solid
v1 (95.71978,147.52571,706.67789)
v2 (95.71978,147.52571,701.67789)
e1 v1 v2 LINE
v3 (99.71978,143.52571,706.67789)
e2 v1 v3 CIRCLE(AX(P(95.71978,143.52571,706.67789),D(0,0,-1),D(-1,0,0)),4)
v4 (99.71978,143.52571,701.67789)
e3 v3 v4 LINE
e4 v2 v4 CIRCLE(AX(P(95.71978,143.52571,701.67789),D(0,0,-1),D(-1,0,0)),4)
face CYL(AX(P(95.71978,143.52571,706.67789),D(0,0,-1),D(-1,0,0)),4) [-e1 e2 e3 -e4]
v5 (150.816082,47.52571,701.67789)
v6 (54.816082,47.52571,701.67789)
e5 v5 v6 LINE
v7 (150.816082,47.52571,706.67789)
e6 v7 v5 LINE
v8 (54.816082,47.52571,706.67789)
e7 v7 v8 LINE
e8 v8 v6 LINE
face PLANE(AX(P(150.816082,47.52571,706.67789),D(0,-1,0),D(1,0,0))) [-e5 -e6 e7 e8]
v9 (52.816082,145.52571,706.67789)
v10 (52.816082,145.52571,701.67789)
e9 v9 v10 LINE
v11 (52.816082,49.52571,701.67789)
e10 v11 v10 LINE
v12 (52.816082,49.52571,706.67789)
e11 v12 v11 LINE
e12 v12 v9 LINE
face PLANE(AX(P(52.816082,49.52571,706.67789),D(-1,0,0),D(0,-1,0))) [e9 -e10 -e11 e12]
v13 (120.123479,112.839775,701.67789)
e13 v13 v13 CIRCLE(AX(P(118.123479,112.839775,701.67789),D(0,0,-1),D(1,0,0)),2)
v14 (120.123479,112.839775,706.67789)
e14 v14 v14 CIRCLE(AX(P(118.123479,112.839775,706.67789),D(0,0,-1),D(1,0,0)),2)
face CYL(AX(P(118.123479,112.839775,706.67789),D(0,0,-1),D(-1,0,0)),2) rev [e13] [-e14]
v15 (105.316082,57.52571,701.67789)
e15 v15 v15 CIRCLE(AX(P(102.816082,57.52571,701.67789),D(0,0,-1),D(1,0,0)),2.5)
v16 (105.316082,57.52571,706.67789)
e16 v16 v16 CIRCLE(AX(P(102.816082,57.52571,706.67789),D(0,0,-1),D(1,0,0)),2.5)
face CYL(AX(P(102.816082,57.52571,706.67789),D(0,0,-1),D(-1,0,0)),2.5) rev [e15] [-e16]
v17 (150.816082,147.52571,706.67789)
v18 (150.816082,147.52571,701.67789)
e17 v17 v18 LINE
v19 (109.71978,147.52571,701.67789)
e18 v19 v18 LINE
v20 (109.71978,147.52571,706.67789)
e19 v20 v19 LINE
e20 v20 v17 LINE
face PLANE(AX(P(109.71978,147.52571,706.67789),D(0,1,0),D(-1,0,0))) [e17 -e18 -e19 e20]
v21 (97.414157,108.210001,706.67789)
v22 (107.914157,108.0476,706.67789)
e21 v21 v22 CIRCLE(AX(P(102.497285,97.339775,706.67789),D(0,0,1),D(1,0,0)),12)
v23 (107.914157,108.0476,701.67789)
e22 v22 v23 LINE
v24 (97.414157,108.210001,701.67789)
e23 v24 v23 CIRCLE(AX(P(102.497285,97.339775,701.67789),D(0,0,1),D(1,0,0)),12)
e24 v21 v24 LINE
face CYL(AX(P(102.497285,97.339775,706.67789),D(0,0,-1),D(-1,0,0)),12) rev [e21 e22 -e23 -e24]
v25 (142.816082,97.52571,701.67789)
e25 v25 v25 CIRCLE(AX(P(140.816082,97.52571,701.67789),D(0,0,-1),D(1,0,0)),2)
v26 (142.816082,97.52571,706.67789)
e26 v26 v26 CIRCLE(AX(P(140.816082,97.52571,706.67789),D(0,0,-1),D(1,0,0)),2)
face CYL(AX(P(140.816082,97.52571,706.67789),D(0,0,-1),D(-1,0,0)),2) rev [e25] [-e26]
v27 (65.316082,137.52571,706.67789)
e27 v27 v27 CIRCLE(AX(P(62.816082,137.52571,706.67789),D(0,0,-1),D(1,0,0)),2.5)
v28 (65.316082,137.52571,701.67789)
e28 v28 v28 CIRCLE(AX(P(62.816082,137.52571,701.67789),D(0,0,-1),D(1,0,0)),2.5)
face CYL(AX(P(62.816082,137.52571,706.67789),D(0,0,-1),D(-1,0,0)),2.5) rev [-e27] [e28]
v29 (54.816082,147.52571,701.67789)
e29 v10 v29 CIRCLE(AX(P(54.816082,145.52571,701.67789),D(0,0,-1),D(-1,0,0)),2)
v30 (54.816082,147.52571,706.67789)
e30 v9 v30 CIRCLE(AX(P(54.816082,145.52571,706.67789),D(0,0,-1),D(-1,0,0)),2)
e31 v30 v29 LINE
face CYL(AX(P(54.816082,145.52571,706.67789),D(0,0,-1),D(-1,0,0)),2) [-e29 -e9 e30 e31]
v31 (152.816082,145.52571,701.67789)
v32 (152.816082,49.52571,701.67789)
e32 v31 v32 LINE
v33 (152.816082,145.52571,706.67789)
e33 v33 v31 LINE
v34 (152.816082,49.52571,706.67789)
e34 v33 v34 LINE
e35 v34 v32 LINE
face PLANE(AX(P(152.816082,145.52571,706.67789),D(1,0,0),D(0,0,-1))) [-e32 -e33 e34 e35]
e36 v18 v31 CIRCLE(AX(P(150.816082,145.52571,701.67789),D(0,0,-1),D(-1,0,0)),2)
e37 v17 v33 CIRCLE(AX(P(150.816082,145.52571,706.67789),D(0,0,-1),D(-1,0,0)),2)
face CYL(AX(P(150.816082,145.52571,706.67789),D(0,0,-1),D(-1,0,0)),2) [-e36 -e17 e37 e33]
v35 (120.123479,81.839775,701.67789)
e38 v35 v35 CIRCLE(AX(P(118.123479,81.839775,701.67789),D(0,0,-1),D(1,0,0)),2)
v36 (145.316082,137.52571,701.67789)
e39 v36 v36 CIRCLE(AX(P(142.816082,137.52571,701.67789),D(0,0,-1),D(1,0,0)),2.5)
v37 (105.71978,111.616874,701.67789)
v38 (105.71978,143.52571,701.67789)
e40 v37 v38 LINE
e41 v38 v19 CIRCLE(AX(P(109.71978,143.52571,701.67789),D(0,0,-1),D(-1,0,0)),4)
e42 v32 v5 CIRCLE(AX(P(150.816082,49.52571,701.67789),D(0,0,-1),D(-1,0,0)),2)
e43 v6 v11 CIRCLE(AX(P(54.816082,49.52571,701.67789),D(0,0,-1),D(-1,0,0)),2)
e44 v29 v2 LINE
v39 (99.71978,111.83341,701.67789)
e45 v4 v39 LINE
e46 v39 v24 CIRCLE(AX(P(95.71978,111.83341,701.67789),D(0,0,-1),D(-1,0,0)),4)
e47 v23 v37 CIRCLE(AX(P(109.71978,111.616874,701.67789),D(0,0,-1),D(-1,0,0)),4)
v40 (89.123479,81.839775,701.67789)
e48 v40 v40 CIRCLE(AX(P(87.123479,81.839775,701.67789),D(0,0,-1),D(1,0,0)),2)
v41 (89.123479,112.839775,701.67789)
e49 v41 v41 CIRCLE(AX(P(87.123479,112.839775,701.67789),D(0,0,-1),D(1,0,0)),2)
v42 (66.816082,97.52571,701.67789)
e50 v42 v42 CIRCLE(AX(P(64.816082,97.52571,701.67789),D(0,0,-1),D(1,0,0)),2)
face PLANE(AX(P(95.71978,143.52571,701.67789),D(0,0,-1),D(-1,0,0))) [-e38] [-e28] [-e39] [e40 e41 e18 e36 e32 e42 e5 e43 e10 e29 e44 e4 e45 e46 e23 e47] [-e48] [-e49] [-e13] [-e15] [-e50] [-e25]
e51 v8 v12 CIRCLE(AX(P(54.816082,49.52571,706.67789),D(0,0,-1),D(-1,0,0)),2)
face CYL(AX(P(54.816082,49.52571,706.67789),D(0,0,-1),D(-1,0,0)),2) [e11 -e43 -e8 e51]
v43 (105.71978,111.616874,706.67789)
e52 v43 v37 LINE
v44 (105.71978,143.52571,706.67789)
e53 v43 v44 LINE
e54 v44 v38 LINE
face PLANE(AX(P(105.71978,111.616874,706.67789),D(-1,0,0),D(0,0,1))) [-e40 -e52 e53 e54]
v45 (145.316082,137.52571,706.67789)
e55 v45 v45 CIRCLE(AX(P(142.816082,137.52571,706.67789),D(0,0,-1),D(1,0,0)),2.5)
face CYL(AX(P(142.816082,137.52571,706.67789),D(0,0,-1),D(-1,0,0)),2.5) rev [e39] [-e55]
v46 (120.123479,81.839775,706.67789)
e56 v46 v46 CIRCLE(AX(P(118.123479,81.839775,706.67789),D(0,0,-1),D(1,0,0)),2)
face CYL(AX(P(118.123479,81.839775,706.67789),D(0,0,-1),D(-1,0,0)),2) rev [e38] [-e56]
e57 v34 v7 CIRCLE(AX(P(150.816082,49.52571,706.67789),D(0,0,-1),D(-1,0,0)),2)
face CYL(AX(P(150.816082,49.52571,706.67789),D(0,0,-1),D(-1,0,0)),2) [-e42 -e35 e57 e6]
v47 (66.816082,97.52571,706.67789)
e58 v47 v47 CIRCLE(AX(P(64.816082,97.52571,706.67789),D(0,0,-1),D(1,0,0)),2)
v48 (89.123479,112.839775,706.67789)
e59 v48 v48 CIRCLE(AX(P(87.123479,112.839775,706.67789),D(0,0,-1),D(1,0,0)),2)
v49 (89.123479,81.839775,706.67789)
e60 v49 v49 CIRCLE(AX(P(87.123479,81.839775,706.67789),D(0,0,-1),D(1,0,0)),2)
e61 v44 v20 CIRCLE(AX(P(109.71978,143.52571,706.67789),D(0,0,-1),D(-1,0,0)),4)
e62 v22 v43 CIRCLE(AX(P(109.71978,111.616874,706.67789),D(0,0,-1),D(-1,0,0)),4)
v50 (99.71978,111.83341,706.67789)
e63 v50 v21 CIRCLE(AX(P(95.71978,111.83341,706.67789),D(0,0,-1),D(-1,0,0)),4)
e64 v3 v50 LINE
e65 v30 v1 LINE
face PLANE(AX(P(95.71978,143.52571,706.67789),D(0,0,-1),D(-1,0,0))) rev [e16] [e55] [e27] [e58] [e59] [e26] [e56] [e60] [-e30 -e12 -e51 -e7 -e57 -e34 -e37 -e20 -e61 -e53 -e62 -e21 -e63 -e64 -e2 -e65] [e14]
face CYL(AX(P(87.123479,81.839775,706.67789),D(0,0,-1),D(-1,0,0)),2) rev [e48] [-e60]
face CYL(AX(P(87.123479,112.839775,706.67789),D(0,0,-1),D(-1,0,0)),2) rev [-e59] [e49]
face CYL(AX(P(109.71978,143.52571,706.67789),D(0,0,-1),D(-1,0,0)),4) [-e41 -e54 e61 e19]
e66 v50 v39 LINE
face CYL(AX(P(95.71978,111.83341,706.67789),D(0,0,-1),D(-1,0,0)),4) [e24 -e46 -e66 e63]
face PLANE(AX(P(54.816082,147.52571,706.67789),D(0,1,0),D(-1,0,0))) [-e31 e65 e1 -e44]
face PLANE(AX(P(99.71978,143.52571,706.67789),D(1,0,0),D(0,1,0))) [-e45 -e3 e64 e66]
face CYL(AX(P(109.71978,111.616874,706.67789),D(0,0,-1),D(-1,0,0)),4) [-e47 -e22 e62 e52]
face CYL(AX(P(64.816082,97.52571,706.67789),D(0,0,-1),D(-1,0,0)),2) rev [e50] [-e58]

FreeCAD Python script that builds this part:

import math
import FreeCAD as App
import Part
import Sketcher
from FreeCAD import Vector

doc = App.newDocument("Part")
body = doc.addObject("PartDesign::Body", "Body")

# Sketch on XY plane
sketch1 = body.newObject("Sketcher::SketchObject", "Sketch")
sketch1.AttachmentSupport = (doc.getObject("XY_Plane"), [""])
sketch1.MapMode = "FlatFace"
sketch1.AttachmentOffset = App.Placement(Vector(0, 0, 701.67789), App.Rotation())
sketch1.addGeometry([
    Part.LineSegment(Vector(99.7, 143.5, 0), Vector(99.7, 111.8, 0)),  # 0
    Part.ArcOfCircle(Part.Circle(Vector(95.7, 111.8, 0), Vector(0, 0, 1), 4), math.radians(-65), math.radians(0)),  # 1
    Part.ArcOfCircle(Part.Circle(Vector(102.5, 97.3, 0), Vector(0, 0, 1), 12), math.radians(115), math.radians(423)),  # 2
    Part.ArcOfCircle(Part.Circle(Vector(109.7, 111.6, 0), Vector(0, 0, 1), 4), math.radians(180), math.radians(243)),  # 3
    Part.LineSegment(Vector(105.7, 111.6, 0), Vector(105.7, 143.5, 0)),  # 4
    Part.ArcOfCircle(Part.Circle(Vector(109.7, 143.5, 0), Vector(0, 0, 1), 4), math.radians(90), math.radians(180)),  # 5
    Part.LineSegment(Vector(109.7, 147.5, 0), Vector(150.8, 147.5, 0)),  # 6
    Part.ArcOfCircle(Part.Circle(Vector(150.8, 145.5, 0), Vector(0, 0, 1), 2), math.radians(0), math.radians(90)),  # 7
    Part.LineSegment(Vector(152.8, 145.5, 0), Vector(152.8, 49.5, 0)),  # 8
    Part.ArcOfCircle(Part.Circle(Vector(150.8, 49.5, 0), Vector(0, 0, 1), 2), math.radians(-90), math.radians(0)),  # 9
    Part.LineSegment(Vector(150.8, 47.5, 0), Vector(54.8, 47.5, 0)),  # 10
    Part.ArcOfCircle(Part.Circle(Vector(54.8, 49.5, 0), Vector(0, 0, 1), 2), math.radians(180), math.radians(270)),  # 11
    Part.LineSegment(Vector(52.8, 49.5, 0), Vector(52.8, 145.5, 0)),  # 12
    Part.ArcOfCircle(Part.Circle(Vector(54.8, 145.5, 0), Vector(0, 0, 1), 2), math.radians(90), math.radians(180)),  # 13
    Part.LineSegment(Vector(54.8, 147.5, 0), Vector(95.7, 147.5, 0)),  # 14
    Part.ArcOfCircle(Part.Circle(Vector(95.7, 143.5, 0), Vector(0, 0, 1), 4), math.radians(0), math.radians(90)),  # 15
    Part.Circle(Vector(102.8, 57.5, 0), Vector(0, 0, 1), 2.5),  # 16
    Part.Circle(Vector(140.8, 97.5, 0), Vector(0, 0, 1), 2),  # 17
    Part.Circle(Vector(118.1, 81.8, 0), Vector(0, 0, 1), 2),  # 18
    Part.Circle(Vector(87.1, 81.8, 0), Vector(0, 0, 1), 2),  # 19
    Part.Circle(Vector(64.8, 97.5, 0), Vector(0, 0, 1), 2),  # 20
    Part.Circle(Vector(118.1, 112.8, 0), Vector(0, 0, 1), 2),  # 21
    Part.Circle(Vector(142.8, 137.5, 0), Vector(0, 0, 1), 2.5),  # 22
    Part.Circle(Vector(87.1, 112.8, 0), Vector(0, 0, 1), 2),  # 23
    Part.Circle(Vector(62.8, 137.5, 0), Vector(0, 0, 1), 2.5),  # 24
], False)
sketch1.addConstraint([
    Sketcher.Constraint("Tangent", 0, 2, 1, 2),
    Sketcher.Constraint("Tangent", 1, 1, 2, 1),
    Sketcher.Constraint("Tangent", 2, 2, 3, 2),
    Sketcher.Constraint("Tangent", 3, 1, 4, 1),
    Sketcher.Constraint("Tangent", 4, 2, 5, 2),
    Sketcher.Constraint("Tangent", 5, 1, 6, 1),
    Sketcher.Constraint("Tangent", 6, 2, 7, 2),
    Sketcher.Constraint("Tangent", 7, 1, 8, 1),
    Sketcher.Constraint("Tangent", 8, 2, 9, 2),
    Sketcher.Constraint("Tangent", 9, 1, 10, 1),
    Sketcher.Constraint("Tangent", 10, 2, 11, 2),
    Sketcher.Constraint("Tangent", 11, 1, 12, 1),
    Sketcher.Constraint("Tangent", 12, 2, 13, 2),
    Sketcher.Constraint("Tangent", 13, 1, 14, 1),
    Sketcher.Constraint("Tangent", 14, 2, 15, 2),
    Sketcher.Constraint("Tangent", 15, 1, 0, 1),
    Sketcher.Constraint("Vertical", 0),
    Sketcher.Constraint("Vertical", 4),
    Sketcher.Constraint("Horizontal", 6),
    Sketcher.Constraint("Vertical", 8),
    Sketcher.Constraint("Horizontal", 10),
    Sketcher.Constraint("Vertical", 12),
    Sketcher.Constraint("Horizontal", 14),
    Sketcher.Constraint("Equal", 1, 3),
    Sketcher.Constraint("Equal", 3, 5),
    Sketcher.Constraint("Equal", 7, 9),
    Sketcher.Constraint("Equal", 9, 11),
    Sketcher.Constraint("Equal", 11, 13),
    Sketcher.Constraint("Equal", 5, 15),
    Sketcher.Constraint("Equal", 13, 17),
    Sketcher.Constraint("Equal", 17, 18),
    Sketcher.Constraint("Equal", 18, 19),
    Sketcher.Constraint("Equal", 19, 20),
    Sketcher.Constraint("Equal", 20, 21),
    Sketcher.Constraint("Equal", 16, 22),
    Sketcher.Constraint("Equal", 21, 23),
    Sketcher.Constraint("Equal", 22, 24),
    Sketcher.Constraint("Horizontal", 7, 3, 13, 3),
    Sketcher.Constraint("Horizontal", 18, 3, 19, 3),
    Sketcher.Constraint("Horizontal", 17, 3, 20, 3),
    Sketcher.Constraint("Horizontal", 21, 3, 23, 3),
    Sketcher.Constraint("Horizontal", 22, 3, 24, 3),
    Sketcher.Constraint("Vertical", 18, 3, 21, 3),
    Sketcher.Constraint("Vertical", 19, 3, 23, 3),
    Sketcher.Constraint("Equal", 10, 8),
    Sketcher.Constraint("Diameter", 16, 5.0),
    Sketcher.Constraint("Diameter", 17, 4.0),
    Sketcher.Constraint("Radius", 1, 4.0),
    Sketcher.Constraint("Radius", 2, 12.0),
    Sketcher.Constraint("DistanceX", 10, 2, 10, 1, 96.0),
    Sketcher.Constraint("DistanceX", 1, 3, 3, 3, 14.0),
    Sketcher.Constraint("DistanceX", 16, 3, 9, 3, 48.0),
    Sketcher.Constraint("DistanceY", 9, 3, 16, 3, 8.0),
    Sketcher.Constraint("DistanceX", 17, 3, 7, 3, 10.0),
    Sketcher.Constraint("DistanceY", 17, 3, 7, 3, 48.0),
    Sketcher.Constraint("DistanceX", 19, 3, 18, 3, 31.0),
    Sketcher.Constraint("DistanceX", 13, 3, 20, 3, 10.0),
    Sketcher.Constraint("DistanceY", 18, 3, 21, 3, 31.0),
    Sketcher.Constraint("DistanceX", 22, 3, 7, 3, 8.0),
    Sketcher.Constraint("DistanceY", 22, 3, 7, 3, 8.0),
    Sketcher.Constraint("DistanceX", 13, 3, 24, 3, 8.0),
    Sketcher.Constraint("DistanceY", 18, 3, 2, 3, 15.5),
    Sketcher.Constraint("DistanceY", -1, 1, 1, 1, 108.210001),
    Sketcher.Constraint("DistanceX", 6, 1, 6, 2, 41.096301),
    Sketcher.Constraint("DistanceY", 0, 2, 0, 1, 31.6923),
    Sketcher.Constraint("DistanceY", -1, 1, 2, 2, 108.0476),
    Sketcher.Constraint("DistanceX", 3, 3, 18, 3, 8.403699),
    Sketcher.Constraint("DistanceX", -1, 1, 1, 3, 95.71978),
])
pad1 = body.newObject("PartDesign::Pad", "Pad")
pad1.Profile = sketch1
pad1.Length = 5

doc.recompute()
